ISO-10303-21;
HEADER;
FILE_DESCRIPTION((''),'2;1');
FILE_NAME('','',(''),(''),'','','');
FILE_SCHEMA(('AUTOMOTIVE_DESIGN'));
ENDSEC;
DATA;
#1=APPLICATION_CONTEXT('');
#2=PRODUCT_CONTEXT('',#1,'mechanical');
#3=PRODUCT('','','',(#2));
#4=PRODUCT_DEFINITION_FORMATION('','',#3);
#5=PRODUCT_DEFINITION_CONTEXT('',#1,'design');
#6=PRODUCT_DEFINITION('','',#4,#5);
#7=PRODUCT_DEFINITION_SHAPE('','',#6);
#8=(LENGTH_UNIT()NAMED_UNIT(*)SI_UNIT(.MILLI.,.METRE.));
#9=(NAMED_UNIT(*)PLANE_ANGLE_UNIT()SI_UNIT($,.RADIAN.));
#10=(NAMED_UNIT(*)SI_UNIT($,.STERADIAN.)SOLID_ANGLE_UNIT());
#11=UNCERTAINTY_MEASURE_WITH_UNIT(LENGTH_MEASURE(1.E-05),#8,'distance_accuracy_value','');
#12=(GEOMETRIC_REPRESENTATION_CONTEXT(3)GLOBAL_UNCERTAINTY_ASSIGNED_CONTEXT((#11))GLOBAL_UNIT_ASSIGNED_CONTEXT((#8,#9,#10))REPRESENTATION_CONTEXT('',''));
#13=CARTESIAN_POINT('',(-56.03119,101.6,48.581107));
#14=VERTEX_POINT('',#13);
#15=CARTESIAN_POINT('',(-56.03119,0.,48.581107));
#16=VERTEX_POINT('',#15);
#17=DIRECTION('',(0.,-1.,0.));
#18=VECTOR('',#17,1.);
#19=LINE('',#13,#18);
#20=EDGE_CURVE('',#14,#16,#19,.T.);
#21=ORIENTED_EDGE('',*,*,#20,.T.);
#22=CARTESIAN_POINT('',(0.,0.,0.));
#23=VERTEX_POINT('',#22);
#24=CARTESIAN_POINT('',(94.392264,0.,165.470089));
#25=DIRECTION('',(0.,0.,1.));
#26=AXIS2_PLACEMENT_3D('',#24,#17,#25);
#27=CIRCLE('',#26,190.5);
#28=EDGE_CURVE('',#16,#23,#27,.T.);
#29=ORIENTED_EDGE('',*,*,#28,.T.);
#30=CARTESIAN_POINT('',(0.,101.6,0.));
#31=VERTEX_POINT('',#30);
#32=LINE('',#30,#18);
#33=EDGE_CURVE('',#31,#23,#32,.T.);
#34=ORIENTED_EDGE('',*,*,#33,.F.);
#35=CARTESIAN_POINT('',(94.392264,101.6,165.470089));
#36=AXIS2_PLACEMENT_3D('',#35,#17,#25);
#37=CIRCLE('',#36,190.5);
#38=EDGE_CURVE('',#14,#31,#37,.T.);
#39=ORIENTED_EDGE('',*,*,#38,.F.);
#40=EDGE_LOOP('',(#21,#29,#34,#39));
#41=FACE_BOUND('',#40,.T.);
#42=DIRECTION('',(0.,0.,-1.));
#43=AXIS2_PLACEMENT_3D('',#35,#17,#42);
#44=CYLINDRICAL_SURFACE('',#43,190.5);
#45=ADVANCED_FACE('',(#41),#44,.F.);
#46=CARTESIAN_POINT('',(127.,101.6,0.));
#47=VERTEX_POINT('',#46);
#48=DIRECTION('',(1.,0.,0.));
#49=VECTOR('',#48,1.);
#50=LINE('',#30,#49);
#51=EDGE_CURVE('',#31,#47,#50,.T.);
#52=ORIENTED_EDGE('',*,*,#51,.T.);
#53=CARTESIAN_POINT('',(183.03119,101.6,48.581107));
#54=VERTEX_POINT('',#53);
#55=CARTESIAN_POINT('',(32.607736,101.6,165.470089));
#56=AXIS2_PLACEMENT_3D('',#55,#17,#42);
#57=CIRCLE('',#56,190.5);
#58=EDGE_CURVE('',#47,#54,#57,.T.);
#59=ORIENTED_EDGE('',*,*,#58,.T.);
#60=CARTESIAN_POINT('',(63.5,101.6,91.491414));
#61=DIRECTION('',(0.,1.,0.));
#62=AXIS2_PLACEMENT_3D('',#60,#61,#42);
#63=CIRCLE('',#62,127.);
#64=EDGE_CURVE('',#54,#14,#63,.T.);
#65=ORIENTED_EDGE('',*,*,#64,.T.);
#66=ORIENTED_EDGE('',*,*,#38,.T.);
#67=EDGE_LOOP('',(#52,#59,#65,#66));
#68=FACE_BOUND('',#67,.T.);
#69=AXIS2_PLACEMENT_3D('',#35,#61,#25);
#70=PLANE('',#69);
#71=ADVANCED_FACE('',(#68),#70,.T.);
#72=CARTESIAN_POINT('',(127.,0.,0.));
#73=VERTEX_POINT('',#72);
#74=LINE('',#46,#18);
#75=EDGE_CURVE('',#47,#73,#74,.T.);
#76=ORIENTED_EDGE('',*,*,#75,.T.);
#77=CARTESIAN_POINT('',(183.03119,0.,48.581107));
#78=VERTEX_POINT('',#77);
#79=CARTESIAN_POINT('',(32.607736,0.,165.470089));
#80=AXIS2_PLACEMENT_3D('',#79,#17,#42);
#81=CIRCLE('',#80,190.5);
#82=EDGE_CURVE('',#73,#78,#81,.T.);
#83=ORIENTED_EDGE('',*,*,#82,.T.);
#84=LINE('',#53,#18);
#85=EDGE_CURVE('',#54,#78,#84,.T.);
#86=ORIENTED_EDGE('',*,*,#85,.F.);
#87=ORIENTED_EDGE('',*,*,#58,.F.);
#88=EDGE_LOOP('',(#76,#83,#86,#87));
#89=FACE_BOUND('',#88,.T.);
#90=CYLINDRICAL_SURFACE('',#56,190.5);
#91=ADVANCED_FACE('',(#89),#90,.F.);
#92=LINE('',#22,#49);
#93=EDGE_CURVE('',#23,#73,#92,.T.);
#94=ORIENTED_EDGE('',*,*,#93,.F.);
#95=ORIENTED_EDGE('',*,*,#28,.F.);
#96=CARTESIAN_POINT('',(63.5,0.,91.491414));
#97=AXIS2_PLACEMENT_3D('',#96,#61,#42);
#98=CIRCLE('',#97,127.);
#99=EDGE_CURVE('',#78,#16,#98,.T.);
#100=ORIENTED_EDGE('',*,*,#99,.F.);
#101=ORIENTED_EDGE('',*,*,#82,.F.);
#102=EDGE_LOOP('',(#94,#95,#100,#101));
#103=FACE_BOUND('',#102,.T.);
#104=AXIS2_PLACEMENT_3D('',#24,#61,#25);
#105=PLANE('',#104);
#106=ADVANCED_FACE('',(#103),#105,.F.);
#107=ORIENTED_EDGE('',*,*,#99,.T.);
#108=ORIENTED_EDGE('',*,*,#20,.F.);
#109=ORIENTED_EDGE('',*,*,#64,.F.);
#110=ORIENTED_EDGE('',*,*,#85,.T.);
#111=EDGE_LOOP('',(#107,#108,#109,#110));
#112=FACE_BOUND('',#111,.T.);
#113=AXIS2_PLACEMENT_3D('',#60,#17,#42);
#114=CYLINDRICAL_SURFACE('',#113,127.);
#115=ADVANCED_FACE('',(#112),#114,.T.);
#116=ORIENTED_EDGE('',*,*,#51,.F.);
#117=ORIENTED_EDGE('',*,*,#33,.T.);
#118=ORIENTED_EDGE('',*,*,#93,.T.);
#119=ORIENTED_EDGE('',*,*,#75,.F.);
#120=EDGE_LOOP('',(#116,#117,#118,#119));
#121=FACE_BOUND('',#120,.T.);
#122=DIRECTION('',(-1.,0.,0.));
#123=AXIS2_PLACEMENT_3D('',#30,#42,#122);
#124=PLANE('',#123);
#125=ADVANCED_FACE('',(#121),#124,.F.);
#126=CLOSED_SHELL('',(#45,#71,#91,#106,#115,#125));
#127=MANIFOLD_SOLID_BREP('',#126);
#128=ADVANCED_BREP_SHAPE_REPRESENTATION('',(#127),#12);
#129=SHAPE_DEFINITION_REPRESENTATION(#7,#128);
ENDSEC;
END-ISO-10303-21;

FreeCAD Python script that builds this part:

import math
import FreeCAD as App
import Part
import Sketcher
from FreeCAD import Vector
Q = App.Units.Quantity

doc = App.newDocument("Part")
body = doc.addObject("PartDesign::Body", "Body")

sketch1 = body.newObject("Sketcher::SketchObject", "Sketch")
sketch1.AttachmentSupport = (doc.getObject("XZ_Plane"), [""])
sketch1.MapMode = "FlatFace"
sketch1.addGeometry(Part.LineSegment(Vector(0, 0, 0), Vector(127, 0, 0)), False)
sketch1.addGeometry(Part.ArcOfCircle(Part.Circle(Vector(33, 165, 0), Vector(0, 0, 1), 190), math.radians(-60), math.radians(-38)), False)
sketch1.addGeometry(Part.ArcOfCircle(Part.Circle(Vector(64, 91, 0), Vector(0, 0, 1), 127), math.radians(-160), math.radians(-20)), False)
sketch1.addGeometry(Part.ArcOfCircle(Part.Circle(Vector(94, 165, 0), Vector(0, 0, 1), 190), math.radians(-142), math.radians(-120)), False)
sketch1.addConstraint(Sketcher.Constraint("Coincident", 0, 2, 1, 1))
sketch1.addConstraint(Sketcher.Constraint("Coincident", 1, 2, 2, 2))
sketch1.addConstraint(Sketcher.Constraint("Coincident", 2, 1, 3, 1))
sketch1.addConstraint(Sketcher.Constraint("Coincident", 3, 2, 0, 1))
sketch1.addConstraint(Sketcher.Constraint("Horizontal", 0))
sketch1.addConstraint(Sketcher.Constraint("Coincident", 3, 2, -1, 1))
sketch1.addConstraint(Sketcher.Constraint("Equal", 1, 3))
sketch1.addConstraint(Sketcher.Constraint("Horizontal", 1, 3, 3, 3))
sketch1.addConstraint(Sketcher.Constraint("Horizontal", 1, 2, 2, 1))
sketch1.addConstraint(Sketcher.Constraint("Radius", 2, Q("5 in")))
sketch1.addConstraint(Sketcher.Constraint("Radius", 1, Q("7.5 in")))
sketch1.addConstraint(Sketcher.Constraint("DistanceX", 0, 1, 0, 2, Q("5 in")))
sketch1.addConstraint(Sketcher.Constraint("DistanceY", -1, 1, 1, 3, 165.470089))
sketch1.addConstraint(Sketcher.Constraint("DistanceX", -1, 1, 1, 2, 183.03119))
pad1 = body.newObject("PartDesign::Pad", "Pad")
pad1.Profile = sketch1
pad1.Length = Q("4 in")
pad1.Reversed = True

doc.recompute()
